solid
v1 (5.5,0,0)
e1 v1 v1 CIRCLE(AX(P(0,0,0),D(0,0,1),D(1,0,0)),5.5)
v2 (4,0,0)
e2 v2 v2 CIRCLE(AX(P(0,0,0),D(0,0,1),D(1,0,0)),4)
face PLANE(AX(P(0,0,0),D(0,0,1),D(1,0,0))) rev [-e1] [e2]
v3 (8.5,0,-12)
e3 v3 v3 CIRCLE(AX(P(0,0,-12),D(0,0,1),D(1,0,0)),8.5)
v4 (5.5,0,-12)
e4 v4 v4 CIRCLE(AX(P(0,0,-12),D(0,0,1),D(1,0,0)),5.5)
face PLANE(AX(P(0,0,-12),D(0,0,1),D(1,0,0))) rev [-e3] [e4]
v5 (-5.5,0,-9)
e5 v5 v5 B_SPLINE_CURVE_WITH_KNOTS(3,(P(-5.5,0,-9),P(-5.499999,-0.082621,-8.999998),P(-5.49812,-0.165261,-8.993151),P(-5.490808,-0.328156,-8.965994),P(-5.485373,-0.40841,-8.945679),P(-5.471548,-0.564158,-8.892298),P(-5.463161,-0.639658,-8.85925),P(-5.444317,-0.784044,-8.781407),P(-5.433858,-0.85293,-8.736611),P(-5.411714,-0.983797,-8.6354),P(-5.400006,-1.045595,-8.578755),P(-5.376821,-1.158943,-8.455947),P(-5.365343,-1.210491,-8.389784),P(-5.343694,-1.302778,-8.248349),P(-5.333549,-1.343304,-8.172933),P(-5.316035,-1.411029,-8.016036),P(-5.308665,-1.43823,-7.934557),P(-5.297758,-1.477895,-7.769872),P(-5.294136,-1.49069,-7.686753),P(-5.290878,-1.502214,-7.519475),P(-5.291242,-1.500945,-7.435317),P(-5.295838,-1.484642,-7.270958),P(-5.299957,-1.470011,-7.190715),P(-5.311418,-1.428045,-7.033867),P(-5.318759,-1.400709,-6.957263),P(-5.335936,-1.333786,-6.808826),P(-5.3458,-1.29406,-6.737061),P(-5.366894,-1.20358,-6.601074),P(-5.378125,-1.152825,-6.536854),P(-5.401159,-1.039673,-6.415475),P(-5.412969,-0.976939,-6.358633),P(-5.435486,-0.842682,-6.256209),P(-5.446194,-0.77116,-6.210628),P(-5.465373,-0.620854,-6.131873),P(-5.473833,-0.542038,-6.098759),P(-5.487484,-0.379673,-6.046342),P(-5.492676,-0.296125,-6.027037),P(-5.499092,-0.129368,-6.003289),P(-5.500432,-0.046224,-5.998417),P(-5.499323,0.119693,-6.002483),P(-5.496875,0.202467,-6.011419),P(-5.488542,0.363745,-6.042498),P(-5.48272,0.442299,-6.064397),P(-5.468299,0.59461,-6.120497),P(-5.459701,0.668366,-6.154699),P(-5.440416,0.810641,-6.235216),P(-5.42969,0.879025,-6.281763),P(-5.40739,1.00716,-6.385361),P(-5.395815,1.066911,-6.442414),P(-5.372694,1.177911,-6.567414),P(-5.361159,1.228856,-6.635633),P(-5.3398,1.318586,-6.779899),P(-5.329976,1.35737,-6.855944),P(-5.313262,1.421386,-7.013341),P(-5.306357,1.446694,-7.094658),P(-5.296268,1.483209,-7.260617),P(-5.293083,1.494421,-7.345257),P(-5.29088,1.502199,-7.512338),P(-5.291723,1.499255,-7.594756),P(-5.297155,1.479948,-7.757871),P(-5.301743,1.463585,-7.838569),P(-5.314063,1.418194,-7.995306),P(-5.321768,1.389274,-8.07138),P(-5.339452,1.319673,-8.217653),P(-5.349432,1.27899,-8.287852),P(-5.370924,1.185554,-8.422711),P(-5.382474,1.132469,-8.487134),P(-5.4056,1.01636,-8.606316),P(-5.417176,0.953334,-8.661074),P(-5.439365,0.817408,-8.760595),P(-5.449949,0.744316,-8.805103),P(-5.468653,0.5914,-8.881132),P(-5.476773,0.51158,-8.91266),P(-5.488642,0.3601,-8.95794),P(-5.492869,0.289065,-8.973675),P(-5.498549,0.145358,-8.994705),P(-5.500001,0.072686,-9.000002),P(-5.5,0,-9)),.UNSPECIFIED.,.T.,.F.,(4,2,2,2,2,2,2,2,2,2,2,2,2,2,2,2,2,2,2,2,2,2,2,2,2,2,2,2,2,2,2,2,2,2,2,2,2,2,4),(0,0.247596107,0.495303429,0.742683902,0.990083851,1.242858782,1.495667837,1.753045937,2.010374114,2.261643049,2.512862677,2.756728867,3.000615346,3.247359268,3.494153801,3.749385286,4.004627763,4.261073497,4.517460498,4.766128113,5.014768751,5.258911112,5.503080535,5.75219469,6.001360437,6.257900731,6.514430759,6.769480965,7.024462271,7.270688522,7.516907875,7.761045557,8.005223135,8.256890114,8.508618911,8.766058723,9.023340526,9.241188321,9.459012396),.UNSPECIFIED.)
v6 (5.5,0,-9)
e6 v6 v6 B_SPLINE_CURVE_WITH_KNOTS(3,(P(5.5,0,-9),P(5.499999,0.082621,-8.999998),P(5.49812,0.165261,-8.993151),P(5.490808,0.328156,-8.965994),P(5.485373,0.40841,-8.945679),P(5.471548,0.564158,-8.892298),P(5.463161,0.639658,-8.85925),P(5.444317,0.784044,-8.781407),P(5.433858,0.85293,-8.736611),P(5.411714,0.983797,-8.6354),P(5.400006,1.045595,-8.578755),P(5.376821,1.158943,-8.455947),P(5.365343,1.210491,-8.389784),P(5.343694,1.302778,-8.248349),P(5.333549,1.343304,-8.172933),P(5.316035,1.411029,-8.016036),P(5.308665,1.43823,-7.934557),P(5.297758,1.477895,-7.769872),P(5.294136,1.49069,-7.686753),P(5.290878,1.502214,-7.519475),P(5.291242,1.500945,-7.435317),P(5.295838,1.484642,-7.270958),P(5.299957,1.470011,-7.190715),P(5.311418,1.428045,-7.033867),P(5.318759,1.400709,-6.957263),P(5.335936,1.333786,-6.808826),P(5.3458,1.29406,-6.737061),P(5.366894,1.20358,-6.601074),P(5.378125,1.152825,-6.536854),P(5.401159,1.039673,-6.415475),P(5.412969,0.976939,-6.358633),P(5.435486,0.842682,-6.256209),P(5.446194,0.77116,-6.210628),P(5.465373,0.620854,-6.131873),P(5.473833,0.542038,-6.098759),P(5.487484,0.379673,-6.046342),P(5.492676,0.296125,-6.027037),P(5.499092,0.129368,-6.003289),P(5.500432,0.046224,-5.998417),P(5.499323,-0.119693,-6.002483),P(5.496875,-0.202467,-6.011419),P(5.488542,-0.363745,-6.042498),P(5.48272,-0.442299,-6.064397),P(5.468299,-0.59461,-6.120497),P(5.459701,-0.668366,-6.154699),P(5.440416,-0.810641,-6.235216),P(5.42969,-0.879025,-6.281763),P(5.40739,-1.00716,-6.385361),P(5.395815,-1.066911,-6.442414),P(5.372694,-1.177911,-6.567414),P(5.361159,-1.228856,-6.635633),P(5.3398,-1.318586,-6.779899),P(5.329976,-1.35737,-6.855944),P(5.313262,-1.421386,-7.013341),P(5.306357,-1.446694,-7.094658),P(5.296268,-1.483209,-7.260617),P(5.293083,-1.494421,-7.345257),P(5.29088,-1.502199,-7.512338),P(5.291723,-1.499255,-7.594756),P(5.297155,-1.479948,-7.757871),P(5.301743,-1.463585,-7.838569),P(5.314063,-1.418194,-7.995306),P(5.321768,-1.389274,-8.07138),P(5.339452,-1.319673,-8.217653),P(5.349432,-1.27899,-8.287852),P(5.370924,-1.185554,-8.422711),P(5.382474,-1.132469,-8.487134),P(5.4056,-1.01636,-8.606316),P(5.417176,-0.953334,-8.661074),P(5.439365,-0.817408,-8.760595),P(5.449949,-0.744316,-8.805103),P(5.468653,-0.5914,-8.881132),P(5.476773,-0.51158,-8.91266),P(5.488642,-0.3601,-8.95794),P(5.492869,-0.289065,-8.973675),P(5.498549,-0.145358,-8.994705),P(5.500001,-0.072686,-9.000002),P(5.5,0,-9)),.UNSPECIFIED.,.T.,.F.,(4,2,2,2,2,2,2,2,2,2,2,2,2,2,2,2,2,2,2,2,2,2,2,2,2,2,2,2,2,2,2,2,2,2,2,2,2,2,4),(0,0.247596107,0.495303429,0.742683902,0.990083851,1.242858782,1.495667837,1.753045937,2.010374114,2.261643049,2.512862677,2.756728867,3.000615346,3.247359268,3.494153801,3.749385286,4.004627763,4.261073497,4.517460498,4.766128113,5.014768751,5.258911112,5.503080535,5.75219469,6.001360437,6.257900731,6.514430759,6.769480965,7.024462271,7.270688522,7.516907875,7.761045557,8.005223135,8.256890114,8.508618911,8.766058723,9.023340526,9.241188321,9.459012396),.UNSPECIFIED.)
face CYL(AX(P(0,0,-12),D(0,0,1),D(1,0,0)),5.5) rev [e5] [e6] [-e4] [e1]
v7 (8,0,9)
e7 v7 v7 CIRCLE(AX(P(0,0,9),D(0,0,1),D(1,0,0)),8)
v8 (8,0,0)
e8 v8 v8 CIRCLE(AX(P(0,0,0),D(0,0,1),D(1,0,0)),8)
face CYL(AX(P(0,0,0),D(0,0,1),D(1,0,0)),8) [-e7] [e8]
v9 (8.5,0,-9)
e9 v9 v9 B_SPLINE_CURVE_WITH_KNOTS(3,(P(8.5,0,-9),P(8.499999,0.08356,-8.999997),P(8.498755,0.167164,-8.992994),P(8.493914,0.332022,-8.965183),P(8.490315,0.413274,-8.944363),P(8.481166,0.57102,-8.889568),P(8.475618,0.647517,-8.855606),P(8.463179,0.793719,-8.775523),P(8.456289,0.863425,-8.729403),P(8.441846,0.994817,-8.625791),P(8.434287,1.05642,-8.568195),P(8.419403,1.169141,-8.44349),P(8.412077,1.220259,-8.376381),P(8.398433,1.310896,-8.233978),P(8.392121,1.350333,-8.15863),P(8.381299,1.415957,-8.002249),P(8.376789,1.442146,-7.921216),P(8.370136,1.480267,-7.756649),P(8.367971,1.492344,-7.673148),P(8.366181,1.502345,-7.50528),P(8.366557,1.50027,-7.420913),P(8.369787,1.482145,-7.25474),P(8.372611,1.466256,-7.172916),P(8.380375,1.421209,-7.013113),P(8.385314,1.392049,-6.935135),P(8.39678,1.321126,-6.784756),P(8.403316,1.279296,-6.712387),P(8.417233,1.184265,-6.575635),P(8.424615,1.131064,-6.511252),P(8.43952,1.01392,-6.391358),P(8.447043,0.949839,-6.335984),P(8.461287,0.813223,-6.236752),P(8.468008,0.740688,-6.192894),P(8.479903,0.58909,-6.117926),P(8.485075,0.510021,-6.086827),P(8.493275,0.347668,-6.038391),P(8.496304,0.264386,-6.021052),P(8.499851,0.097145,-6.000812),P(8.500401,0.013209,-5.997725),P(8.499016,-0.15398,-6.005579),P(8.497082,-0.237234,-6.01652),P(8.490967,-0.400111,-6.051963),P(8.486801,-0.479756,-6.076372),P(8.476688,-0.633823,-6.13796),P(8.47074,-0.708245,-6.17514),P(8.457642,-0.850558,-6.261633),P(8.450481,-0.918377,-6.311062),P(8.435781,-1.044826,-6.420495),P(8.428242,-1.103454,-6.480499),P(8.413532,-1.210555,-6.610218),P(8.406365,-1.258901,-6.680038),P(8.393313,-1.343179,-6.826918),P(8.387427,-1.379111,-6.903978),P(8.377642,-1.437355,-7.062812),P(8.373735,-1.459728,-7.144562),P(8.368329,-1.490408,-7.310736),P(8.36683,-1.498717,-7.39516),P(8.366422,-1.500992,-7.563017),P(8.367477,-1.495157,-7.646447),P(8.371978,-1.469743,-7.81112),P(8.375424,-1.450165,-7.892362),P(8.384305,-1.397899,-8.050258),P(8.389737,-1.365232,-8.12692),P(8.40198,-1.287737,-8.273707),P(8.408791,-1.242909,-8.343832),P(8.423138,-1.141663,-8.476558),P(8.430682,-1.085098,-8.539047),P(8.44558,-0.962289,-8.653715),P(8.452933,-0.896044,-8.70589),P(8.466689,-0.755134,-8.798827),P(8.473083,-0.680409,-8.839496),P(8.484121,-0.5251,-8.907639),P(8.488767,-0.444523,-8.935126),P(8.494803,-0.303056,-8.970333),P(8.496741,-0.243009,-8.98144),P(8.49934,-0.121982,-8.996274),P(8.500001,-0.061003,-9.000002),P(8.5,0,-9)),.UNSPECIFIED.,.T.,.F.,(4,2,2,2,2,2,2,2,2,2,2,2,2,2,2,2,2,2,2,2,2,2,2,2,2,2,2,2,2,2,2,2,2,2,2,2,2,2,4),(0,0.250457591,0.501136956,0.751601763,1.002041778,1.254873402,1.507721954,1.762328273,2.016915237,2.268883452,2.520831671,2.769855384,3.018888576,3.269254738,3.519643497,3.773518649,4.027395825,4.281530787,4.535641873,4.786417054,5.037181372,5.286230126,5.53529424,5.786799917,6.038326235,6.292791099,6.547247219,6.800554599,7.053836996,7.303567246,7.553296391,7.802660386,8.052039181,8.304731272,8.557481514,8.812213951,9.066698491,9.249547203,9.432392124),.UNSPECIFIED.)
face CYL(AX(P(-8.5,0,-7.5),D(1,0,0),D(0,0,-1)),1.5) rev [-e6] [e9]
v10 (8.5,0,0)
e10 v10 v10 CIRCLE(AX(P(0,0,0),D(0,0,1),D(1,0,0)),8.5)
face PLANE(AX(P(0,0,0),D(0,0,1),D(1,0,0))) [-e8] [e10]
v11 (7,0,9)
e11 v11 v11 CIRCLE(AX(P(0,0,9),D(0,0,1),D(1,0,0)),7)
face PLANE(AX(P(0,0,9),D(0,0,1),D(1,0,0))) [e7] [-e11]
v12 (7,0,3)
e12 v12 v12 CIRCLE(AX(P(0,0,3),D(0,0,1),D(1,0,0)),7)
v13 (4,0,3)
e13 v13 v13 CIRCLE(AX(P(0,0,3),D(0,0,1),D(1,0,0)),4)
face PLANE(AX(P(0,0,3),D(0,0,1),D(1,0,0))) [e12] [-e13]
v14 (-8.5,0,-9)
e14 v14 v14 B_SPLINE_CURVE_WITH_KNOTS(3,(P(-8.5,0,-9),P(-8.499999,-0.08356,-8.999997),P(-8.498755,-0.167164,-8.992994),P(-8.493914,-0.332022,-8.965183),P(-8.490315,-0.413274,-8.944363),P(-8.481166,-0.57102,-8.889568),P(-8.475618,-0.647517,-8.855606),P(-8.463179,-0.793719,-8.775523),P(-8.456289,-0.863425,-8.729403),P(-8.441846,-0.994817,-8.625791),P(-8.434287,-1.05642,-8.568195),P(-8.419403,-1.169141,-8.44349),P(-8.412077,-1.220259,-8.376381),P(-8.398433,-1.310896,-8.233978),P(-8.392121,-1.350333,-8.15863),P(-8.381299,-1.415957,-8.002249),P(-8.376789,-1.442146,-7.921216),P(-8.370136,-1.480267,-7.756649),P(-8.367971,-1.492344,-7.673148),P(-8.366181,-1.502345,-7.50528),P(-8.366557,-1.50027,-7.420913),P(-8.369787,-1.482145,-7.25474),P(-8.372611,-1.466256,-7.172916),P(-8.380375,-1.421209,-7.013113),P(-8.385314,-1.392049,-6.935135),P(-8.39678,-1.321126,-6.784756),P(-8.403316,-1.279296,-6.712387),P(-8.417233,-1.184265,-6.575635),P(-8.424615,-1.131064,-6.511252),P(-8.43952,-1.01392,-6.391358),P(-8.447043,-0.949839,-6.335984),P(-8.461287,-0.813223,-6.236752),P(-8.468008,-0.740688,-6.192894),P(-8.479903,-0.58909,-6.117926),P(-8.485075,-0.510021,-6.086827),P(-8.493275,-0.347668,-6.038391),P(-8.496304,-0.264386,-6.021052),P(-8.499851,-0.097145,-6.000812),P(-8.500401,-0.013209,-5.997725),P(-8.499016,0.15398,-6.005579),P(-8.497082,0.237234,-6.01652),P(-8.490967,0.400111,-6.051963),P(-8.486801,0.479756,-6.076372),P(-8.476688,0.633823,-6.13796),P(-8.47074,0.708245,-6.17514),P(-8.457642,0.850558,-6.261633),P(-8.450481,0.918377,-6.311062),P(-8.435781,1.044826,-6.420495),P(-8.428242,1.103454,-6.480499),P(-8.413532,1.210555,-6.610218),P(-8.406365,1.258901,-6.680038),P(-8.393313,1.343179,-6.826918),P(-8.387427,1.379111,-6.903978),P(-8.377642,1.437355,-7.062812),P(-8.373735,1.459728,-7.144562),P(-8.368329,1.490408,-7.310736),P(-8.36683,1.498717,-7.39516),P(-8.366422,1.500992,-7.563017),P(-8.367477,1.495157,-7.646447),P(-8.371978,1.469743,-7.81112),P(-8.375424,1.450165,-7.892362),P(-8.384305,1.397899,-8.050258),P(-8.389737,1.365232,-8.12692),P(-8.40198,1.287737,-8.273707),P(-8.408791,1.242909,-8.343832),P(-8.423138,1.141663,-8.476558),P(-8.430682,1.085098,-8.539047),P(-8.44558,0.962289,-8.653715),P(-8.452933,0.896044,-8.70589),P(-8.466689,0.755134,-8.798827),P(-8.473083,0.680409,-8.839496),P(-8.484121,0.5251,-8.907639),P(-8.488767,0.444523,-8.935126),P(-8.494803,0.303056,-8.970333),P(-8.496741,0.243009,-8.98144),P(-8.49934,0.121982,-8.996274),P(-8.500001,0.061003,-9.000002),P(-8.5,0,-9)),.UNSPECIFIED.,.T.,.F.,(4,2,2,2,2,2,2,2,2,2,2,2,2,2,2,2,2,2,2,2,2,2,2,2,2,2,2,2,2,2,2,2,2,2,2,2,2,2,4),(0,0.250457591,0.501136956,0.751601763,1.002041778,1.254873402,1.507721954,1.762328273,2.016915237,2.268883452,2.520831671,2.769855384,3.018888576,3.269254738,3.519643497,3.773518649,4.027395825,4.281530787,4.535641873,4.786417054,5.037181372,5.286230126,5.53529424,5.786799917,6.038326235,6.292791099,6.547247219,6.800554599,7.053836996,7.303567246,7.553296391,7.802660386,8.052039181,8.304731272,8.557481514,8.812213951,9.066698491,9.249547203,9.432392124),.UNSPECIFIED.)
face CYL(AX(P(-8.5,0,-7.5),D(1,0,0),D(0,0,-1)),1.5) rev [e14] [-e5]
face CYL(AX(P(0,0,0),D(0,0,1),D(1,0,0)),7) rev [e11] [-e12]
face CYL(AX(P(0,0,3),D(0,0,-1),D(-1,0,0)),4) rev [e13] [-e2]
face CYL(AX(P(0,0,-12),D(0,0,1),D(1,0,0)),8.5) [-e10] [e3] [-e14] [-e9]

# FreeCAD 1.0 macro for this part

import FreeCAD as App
import Part
import Sketcher
from FreeCAD import Vector
Q = App.Units.Quantity

doc = App.newDocument("Part")
body = doc.addObject("PartDesign::Body", "Body")

# Sketch on XY plane
sketch1 = body.newObject("Sketcher::SketchObject", "Sketch")
sketch1.AttachmentSupport = (doc.getObject("XY_Plane"), [""])
sketch1.MapMode = "FlatFace"
sketch1.addGeometry([
    Part.Circle(Vector(0, 0, 0), Vector(0, 0, 1), 7.5),
    Part.Circle(Vector(0, 0, 0), Vector(0, 0, 1), 4),
], False)
sketch1.addConstraint([
    Sketcher.Constraint("Coincident", 0, 3, -1, 1),
    Sketcher.Constraint("Coincident", 1, 3, -1, 1),
    Sketcher.Constraint("Diameter", 0, Q("15 mm")),
    Sketcher.Constraint("Diameter", 1, Q("8 mm")),
])
pad1 = body.newObject("PartDesign::Pad", "Pad")
pad1.Profile = sketch1
pad1.Length = 3

# Sketch on XY plane
sketch2 = body.newObject("Sketcher::SketchObject", "Sketch001")
sketch2.AttachmentSupport = (doc.getObject("XY_Plane"), [""])
sketch2.MapMode = "FlatFace"
sketch2.addGeometry([
    Part.Circle(Vector(0, 0, 0), Vector(0, 0, 1), 8),
    Part.Circle(Vector(0, 0, 0), Vector(0, 0, 1), 6),
], False)
sketch2.addConstraint([
    Sketcher.Constraint("Coincident", 0, 3, -1, 1),
    Sketcher.Constraint("Coincident", 1, 3, -1, 1),
    Sketcher.Constraint("Diameter", 0, Q("17 mm")),
    Sketcher.Constraint("Diameter", 1, Q("11 mm")),
])
pad2 = body.newObject("PartDesign::Pad", "Pad001")
pad2.Profile = sketch2
pad2.Length = 12
pad2.Reversed = True

# Sketch on YZ plane
sketch3 = body.newObject("Sketcher::SketchObject", "Sketch002")
sketch3.AttachmentSupport = (doc.getObject("YZ_Plane"), [""])
sketch3.MapMode = "FlatFace"
sketch3.addGeometry(Part.Circle(Vector(0, -7.5, 0), Vector(0, 0, 1), 1.5), False)
sketch3.addConstraint([
    Sketcher.Constraint("PointOnObject", 0, 3, -2),
    Sketcher.Constraint("Diameter", 0, Q("3 mm")),
    Sketcher.Constraint("DistanceY", 0, 3, -1, 1, Q("7.5 mm")),
])
pocket1 = body.newObject("PartDesign::Pocket", "Pocket")
pocket1.Profile = sketch3
pocket1.Type = "ThroughAll"
pocket1.Midplane = True

# Sketch on XY plane
sketch4 = body.newObject("Sketcher::SketchObject", "Sketch003")
sketch4.AttachmentSupport = (doc.getObject("XY_Plane"), [""])
sketch4.MapMode = "FlatFace"
sketch4.AttachmentOffset = App.Placement(Vector(0, 0, 3), App.Rotation())
sketch4.addGeometry([
    Part.Circle(Vector(0, 0, 0), Vector(0, 0, 1), 8),
    Part.Circle(Vector(0, 0, 0), Vector(0, 0, 1), 7),
], False)
sketch4.addConstraint([
    Sketcher.Constraint("Coincident", 0, 3, -1, 1),
    Sketcher.Constraint("Coincident", 1, 3, -1, 1),
    Sketcher.Constraint("Diameter", 0, Q("16 mm")),
    Sketcher.Constraint("Diameter", 1, Q("14 mm")),
])
pad3 = body.newObject("PartDesign::Pad", "Pad002")
pad3.Profile = sketch4
pad3.Type = "TwoLengths"
pad3.Length = 6
pad3.Length2 = 3

doc.recompute()
